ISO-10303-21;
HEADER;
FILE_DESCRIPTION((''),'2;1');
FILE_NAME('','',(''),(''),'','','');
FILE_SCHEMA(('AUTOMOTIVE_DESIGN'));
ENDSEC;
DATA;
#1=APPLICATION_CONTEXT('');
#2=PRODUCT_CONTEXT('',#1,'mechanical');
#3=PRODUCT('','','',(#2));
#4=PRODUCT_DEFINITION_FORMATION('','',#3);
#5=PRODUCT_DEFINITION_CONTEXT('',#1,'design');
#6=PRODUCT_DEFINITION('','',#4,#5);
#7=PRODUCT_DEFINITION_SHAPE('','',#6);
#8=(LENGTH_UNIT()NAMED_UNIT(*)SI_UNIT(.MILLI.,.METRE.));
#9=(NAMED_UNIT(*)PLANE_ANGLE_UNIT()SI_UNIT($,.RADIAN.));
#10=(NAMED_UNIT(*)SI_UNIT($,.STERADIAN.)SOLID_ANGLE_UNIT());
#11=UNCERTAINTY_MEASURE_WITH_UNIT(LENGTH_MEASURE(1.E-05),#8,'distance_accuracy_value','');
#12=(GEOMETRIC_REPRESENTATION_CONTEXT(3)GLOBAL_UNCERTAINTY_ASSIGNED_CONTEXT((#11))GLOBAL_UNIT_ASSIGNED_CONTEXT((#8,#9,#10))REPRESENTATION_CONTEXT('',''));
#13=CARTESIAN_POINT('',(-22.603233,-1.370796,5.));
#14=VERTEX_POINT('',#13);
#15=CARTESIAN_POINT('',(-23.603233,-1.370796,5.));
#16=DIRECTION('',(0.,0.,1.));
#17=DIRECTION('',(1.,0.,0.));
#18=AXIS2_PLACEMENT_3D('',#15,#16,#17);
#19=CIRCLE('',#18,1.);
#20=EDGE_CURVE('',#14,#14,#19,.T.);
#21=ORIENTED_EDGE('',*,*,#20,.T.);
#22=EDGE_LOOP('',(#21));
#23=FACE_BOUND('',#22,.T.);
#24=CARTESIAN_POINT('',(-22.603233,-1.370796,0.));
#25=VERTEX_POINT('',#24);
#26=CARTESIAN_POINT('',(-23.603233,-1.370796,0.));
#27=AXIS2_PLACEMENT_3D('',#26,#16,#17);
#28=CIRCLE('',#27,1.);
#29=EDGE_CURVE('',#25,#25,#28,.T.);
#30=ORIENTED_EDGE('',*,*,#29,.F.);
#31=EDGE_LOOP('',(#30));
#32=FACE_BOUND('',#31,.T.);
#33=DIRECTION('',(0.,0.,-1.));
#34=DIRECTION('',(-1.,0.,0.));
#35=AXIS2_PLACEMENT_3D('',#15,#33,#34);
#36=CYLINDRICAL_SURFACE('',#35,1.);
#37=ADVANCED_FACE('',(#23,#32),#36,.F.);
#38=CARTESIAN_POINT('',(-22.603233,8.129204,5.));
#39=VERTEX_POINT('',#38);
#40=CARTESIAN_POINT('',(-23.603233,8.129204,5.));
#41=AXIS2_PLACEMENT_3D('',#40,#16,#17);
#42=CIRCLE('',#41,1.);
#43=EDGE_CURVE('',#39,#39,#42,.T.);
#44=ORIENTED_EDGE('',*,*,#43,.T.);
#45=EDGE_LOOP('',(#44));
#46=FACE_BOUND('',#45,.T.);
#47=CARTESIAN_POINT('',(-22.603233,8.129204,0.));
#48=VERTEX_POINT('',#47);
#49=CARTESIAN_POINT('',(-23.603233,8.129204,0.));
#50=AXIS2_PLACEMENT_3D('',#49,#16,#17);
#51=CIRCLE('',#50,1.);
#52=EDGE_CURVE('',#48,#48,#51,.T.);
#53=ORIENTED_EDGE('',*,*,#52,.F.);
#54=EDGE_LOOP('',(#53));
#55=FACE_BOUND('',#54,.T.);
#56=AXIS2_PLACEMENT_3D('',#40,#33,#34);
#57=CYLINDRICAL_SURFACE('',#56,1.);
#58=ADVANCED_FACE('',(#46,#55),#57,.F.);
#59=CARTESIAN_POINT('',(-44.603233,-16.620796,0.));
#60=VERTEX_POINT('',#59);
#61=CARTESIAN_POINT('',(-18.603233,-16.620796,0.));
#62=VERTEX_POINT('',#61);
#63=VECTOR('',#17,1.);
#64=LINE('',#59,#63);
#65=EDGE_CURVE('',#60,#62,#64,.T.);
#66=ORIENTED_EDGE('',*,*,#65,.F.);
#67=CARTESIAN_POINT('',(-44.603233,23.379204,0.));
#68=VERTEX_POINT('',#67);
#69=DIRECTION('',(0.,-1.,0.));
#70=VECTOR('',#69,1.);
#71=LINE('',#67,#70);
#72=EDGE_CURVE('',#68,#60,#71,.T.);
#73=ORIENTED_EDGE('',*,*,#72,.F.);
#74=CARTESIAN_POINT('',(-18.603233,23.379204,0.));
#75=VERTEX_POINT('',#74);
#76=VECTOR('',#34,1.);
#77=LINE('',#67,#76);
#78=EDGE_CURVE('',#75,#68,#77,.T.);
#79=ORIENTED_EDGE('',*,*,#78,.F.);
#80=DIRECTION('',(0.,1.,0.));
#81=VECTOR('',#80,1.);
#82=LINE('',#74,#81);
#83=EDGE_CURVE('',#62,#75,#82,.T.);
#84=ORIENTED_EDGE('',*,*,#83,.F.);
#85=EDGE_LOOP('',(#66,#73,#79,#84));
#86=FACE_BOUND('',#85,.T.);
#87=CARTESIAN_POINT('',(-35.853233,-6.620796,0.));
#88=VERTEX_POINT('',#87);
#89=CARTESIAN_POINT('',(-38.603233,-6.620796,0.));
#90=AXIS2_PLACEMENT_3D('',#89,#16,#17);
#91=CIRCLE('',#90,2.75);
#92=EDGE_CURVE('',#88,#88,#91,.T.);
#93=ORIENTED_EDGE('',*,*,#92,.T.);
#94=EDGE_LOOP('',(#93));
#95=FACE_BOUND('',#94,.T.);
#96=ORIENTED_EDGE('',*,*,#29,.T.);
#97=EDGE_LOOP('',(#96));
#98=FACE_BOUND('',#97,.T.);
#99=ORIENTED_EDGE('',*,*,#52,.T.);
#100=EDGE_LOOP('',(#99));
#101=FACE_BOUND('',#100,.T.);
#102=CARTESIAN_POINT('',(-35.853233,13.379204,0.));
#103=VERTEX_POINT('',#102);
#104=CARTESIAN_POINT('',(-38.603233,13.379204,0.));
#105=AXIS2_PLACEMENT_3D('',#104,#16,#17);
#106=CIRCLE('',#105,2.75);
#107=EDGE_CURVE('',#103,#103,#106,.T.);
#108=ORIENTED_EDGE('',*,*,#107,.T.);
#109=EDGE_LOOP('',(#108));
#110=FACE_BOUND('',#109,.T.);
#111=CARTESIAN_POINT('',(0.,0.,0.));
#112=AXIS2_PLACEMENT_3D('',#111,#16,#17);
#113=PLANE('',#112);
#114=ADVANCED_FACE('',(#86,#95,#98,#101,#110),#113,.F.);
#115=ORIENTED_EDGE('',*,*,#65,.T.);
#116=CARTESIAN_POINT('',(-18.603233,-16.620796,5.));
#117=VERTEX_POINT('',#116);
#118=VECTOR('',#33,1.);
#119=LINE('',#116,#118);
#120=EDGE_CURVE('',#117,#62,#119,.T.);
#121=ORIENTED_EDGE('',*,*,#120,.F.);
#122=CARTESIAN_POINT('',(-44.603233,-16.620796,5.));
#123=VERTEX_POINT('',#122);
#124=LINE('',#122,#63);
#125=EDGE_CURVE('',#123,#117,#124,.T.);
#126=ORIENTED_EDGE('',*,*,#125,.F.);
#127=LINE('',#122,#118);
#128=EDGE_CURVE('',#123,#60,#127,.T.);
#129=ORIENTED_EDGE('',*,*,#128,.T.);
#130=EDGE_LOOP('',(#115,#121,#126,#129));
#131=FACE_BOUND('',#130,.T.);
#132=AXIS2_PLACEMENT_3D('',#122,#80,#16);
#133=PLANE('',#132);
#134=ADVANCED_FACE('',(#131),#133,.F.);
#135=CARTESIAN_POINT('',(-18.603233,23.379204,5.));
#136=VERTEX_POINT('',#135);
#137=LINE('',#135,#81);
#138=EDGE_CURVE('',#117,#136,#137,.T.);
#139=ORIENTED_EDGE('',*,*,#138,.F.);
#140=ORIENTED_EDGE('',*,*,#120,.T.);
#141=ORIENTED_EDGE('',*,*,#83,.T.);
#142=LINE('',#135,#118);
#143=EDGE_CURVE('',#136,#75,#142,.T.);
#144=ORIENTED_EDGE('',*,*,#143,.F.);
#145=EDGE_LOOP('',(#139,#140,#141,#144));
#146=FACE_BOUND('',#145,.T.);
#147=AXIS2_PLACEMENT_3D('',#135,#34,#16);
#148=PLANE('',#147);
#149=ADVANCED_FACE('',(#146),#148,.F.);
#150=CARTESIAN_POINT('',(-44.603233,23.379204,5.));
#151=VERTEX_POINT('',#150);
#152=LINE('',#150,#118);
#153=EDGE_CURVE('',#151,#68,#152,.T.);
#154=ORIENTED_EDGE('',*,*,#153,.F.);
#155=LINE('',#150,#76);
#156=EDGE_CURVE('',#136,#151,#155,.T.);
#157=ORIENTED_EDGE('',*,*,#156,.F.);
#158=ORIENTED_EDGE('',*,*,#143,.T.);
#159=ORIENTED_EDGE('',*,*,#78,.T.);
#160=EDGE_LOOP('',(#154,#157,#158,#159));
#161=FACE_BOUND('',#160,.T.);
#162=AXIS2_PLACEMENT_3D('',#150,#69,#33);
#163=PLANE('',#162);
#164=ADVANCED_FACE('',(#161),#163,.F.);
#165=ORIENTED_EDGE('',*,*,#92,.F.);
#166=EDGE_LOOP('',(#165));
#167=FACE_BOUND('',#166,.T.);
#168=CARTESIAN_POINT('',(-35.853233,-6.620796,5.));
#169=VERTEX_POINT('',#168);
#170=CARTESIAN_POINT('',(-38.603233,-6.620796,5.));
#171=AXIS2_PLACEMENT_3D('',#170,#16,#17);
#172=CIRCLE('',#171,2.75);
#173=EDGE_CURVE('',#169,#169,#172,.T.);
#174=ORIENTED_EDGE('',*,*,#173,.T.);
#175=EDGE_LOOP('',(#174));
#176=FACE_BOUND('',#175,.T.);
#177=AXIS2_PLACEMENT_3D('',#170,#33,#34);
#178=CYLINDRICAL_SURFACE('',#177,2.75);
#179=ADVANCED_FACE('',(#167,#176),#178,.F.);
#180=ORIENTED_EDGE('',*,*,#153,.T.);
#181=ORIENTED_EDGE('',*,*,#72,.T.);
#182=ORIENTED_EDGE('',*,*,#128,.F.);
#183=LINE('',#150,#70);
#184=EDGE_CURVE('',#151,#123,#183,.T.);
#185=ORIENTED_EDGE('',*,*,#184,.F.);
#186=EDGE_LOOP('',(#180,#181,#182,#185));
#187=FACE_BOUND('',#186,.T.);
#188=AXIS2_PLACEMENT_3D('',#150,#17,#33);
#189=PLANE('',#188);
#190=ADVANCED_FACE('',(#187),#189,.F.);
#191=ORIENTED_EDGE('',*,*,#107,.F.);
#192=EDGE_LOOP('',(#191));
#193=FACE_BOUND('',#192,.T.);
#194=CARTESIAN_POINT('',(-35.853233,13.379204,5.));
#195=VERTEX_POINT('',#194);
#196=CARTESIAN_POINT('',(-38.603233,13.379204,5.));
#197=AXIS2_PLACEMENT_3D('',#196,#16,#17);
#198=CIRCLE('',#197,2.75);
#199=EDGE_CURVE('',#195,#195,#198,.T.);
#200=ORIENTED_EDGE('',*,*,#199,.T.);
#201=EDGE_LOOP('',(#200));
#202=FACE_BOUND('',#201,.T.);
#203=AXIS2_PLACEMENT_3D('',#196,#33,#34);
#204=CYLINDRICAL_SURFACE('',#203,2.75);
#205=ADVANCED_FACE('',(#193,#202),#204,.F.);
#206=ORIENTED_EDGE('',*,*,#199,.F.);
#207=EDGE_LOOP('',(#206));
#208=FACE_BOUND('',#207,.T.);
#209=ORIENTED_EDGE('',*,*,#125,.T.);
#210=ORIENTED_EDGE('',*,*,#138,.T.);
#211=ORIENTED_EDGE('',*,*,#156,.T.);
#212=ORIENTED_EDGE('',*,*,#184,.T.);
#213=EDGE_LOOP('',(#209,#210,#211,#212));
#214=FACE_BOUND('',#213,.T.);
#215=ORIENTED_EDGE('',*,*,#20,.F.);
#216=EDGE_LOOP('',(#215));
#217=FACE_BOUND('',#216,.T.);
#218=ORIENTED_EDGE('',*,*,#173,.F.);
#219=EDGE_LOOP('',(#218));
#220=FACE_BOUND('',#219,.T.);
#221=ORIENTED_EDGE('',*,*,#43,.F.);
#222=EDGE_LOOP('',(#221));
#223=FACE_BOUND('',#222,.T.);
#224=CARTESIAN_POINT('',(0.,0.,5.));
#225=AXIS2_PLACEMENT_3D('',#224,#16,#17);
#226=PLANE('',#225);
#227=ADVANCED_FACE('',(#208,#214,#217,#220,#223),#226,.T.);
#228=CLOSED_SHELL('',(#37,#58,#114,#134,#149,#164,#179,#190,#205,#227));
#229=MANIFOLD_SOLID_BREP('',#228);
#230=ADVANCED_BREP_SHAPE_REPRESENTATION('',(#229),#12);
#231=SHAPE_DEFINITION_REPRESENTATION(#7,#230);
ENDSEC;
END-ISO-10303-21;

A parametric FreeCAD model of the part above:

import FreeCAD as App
import Part
import Sketcher

V = App.Vector

doc = App.newDocument("Part")
body = doc.addObject("PartDesign::Body", "Body")

sketch1 = doc.addObject("Sketcher::SketchObject", "Sketch")
body.addObject(sketch1)
sketch1.AttachmentSupport = (doc.XY_Plane, [""])
sketch1.MapMode = "FlatFace"
sketch1.addGeometry(Part.LineSegment(V(-44.6, 23.4, 0), V(-44.6, -16.6, 0)), False)
sketch1.addGeometry(Part.LineSegment(V(-44.6, -16.6, 0), V(-18.6, -16.6, 0)), False)
sketch1.addGeometry(Part.LineSegment(V(-18.6, -16.6, 0), V(-18.6, 23.4, 0)), False)
sketch1.addGeometry(Part.LineSegment(V(-18.6, 23.4, 0), V(-44.6, 23.4, 0)), False)
sketch1.addGeometry(Part.Circle(V(-38.6, -6.6, 0), V(0, 0, 1), 2.8), False)
sketch1.addGeometry(Part.Circle(V(-23.6, -1.4, 0), V(0, 0, 1), 1), False)
sketch1.addGeometry(Part.Circle(V(-38.6, 13.4, 0), V(0, 0, 1), 2.8), False)
sketch1.addGeometry(Part.Circle(V(-23.6, 8.1, 0), V(0, 0, 1), 1), False)
sketch1.addConstraint(Sketcher.Constraint("Coincident", 0, 2, 1, 1))
sketch1.addConstraint(Sketcher.Constraint("Coincident", 1, 2, 2, 1))
sketch1.addConstraint(Sketcher.Constraint("Coincident", 2, 2, 3, 1))
sketch1.addConstraint(Sketcher.Constraint("Coincident", 3, 2, 0, 1))
sketch1.addConstraint(Sketcher.Constraint("Vertical", 0))
sketch1.addConstraint(Sketcher.Constraint("Horizontal", 1))
sketch1.addConstraint(Sketcher.Constraint("Vertical", 2))
sketch1.addConstraint(Sketcher.Constraint("Horizontal", 3))
sketch1.addConstraint(Sketcher.Constraint("Equal", 4, 6))
sketch1.addConstraint(Sketcher.Constraint("Equal", 5, 7))
sketch1.addConstraint(Sketcher.Constraint("Vertical", 4, 3, 6, 3))
sketch1.addConstraint(Sketcher.Constraint("Vertical", 5, 3, 7, 3))
sketch1.addConstraint(Sketcher.Constraint("Diameter", 5, 2.0))
sketch1.addConstraint(Sketcher.Constraint("Diameter", 4, 5.5))
sketch1.addConstraint(Sketcher.Constraint("DistanceX", 1, 1, 1, 2, 26.0))
sketch1.addConstraint(Sketcher.Constraint("DistanceY", 0, 2, 0, 1, 40.0))
sketch1.addConstraint(Sketcher.Constraint("DistanceX", 4, 3, 5, 3, 15.0))
sketch1.addConstraint(Sketcher.Constraint("DistanceY", 4, 3, 6, 3, 20.0))
sketch1.addConstraint(Sketcher.Constraint("DistanceX", 0, 2, 4, 3, 6.0))
sketch1.addConstraint(Sketcher.Constraint("DistanceY", 0, 2, 4, 3, 10.0))
sketch1.addConstraint(Sketcher.Constraint("DistanceY", 5, 3, 7, 3, 9.5))
sketch1.addConstraint(Sketcher.Constraint("DistanceY", 4, 3, 5, 3, 5.25))
sketch1.addConstraint(Sketcher.Constraint("DistanceX", 4, 3, -1, 1, 38.603233))
sketch1.addConstraint(Sketcher.Constraint("DistanceY", 4, 3, -1, 1, 6.620796))
pad1 = doc.addObject("PartDesign::Pad", "Pad")
body.addObject(pad1)
pad1.Profile = sketch1
pad1.Length = 5

doc.recompute()
